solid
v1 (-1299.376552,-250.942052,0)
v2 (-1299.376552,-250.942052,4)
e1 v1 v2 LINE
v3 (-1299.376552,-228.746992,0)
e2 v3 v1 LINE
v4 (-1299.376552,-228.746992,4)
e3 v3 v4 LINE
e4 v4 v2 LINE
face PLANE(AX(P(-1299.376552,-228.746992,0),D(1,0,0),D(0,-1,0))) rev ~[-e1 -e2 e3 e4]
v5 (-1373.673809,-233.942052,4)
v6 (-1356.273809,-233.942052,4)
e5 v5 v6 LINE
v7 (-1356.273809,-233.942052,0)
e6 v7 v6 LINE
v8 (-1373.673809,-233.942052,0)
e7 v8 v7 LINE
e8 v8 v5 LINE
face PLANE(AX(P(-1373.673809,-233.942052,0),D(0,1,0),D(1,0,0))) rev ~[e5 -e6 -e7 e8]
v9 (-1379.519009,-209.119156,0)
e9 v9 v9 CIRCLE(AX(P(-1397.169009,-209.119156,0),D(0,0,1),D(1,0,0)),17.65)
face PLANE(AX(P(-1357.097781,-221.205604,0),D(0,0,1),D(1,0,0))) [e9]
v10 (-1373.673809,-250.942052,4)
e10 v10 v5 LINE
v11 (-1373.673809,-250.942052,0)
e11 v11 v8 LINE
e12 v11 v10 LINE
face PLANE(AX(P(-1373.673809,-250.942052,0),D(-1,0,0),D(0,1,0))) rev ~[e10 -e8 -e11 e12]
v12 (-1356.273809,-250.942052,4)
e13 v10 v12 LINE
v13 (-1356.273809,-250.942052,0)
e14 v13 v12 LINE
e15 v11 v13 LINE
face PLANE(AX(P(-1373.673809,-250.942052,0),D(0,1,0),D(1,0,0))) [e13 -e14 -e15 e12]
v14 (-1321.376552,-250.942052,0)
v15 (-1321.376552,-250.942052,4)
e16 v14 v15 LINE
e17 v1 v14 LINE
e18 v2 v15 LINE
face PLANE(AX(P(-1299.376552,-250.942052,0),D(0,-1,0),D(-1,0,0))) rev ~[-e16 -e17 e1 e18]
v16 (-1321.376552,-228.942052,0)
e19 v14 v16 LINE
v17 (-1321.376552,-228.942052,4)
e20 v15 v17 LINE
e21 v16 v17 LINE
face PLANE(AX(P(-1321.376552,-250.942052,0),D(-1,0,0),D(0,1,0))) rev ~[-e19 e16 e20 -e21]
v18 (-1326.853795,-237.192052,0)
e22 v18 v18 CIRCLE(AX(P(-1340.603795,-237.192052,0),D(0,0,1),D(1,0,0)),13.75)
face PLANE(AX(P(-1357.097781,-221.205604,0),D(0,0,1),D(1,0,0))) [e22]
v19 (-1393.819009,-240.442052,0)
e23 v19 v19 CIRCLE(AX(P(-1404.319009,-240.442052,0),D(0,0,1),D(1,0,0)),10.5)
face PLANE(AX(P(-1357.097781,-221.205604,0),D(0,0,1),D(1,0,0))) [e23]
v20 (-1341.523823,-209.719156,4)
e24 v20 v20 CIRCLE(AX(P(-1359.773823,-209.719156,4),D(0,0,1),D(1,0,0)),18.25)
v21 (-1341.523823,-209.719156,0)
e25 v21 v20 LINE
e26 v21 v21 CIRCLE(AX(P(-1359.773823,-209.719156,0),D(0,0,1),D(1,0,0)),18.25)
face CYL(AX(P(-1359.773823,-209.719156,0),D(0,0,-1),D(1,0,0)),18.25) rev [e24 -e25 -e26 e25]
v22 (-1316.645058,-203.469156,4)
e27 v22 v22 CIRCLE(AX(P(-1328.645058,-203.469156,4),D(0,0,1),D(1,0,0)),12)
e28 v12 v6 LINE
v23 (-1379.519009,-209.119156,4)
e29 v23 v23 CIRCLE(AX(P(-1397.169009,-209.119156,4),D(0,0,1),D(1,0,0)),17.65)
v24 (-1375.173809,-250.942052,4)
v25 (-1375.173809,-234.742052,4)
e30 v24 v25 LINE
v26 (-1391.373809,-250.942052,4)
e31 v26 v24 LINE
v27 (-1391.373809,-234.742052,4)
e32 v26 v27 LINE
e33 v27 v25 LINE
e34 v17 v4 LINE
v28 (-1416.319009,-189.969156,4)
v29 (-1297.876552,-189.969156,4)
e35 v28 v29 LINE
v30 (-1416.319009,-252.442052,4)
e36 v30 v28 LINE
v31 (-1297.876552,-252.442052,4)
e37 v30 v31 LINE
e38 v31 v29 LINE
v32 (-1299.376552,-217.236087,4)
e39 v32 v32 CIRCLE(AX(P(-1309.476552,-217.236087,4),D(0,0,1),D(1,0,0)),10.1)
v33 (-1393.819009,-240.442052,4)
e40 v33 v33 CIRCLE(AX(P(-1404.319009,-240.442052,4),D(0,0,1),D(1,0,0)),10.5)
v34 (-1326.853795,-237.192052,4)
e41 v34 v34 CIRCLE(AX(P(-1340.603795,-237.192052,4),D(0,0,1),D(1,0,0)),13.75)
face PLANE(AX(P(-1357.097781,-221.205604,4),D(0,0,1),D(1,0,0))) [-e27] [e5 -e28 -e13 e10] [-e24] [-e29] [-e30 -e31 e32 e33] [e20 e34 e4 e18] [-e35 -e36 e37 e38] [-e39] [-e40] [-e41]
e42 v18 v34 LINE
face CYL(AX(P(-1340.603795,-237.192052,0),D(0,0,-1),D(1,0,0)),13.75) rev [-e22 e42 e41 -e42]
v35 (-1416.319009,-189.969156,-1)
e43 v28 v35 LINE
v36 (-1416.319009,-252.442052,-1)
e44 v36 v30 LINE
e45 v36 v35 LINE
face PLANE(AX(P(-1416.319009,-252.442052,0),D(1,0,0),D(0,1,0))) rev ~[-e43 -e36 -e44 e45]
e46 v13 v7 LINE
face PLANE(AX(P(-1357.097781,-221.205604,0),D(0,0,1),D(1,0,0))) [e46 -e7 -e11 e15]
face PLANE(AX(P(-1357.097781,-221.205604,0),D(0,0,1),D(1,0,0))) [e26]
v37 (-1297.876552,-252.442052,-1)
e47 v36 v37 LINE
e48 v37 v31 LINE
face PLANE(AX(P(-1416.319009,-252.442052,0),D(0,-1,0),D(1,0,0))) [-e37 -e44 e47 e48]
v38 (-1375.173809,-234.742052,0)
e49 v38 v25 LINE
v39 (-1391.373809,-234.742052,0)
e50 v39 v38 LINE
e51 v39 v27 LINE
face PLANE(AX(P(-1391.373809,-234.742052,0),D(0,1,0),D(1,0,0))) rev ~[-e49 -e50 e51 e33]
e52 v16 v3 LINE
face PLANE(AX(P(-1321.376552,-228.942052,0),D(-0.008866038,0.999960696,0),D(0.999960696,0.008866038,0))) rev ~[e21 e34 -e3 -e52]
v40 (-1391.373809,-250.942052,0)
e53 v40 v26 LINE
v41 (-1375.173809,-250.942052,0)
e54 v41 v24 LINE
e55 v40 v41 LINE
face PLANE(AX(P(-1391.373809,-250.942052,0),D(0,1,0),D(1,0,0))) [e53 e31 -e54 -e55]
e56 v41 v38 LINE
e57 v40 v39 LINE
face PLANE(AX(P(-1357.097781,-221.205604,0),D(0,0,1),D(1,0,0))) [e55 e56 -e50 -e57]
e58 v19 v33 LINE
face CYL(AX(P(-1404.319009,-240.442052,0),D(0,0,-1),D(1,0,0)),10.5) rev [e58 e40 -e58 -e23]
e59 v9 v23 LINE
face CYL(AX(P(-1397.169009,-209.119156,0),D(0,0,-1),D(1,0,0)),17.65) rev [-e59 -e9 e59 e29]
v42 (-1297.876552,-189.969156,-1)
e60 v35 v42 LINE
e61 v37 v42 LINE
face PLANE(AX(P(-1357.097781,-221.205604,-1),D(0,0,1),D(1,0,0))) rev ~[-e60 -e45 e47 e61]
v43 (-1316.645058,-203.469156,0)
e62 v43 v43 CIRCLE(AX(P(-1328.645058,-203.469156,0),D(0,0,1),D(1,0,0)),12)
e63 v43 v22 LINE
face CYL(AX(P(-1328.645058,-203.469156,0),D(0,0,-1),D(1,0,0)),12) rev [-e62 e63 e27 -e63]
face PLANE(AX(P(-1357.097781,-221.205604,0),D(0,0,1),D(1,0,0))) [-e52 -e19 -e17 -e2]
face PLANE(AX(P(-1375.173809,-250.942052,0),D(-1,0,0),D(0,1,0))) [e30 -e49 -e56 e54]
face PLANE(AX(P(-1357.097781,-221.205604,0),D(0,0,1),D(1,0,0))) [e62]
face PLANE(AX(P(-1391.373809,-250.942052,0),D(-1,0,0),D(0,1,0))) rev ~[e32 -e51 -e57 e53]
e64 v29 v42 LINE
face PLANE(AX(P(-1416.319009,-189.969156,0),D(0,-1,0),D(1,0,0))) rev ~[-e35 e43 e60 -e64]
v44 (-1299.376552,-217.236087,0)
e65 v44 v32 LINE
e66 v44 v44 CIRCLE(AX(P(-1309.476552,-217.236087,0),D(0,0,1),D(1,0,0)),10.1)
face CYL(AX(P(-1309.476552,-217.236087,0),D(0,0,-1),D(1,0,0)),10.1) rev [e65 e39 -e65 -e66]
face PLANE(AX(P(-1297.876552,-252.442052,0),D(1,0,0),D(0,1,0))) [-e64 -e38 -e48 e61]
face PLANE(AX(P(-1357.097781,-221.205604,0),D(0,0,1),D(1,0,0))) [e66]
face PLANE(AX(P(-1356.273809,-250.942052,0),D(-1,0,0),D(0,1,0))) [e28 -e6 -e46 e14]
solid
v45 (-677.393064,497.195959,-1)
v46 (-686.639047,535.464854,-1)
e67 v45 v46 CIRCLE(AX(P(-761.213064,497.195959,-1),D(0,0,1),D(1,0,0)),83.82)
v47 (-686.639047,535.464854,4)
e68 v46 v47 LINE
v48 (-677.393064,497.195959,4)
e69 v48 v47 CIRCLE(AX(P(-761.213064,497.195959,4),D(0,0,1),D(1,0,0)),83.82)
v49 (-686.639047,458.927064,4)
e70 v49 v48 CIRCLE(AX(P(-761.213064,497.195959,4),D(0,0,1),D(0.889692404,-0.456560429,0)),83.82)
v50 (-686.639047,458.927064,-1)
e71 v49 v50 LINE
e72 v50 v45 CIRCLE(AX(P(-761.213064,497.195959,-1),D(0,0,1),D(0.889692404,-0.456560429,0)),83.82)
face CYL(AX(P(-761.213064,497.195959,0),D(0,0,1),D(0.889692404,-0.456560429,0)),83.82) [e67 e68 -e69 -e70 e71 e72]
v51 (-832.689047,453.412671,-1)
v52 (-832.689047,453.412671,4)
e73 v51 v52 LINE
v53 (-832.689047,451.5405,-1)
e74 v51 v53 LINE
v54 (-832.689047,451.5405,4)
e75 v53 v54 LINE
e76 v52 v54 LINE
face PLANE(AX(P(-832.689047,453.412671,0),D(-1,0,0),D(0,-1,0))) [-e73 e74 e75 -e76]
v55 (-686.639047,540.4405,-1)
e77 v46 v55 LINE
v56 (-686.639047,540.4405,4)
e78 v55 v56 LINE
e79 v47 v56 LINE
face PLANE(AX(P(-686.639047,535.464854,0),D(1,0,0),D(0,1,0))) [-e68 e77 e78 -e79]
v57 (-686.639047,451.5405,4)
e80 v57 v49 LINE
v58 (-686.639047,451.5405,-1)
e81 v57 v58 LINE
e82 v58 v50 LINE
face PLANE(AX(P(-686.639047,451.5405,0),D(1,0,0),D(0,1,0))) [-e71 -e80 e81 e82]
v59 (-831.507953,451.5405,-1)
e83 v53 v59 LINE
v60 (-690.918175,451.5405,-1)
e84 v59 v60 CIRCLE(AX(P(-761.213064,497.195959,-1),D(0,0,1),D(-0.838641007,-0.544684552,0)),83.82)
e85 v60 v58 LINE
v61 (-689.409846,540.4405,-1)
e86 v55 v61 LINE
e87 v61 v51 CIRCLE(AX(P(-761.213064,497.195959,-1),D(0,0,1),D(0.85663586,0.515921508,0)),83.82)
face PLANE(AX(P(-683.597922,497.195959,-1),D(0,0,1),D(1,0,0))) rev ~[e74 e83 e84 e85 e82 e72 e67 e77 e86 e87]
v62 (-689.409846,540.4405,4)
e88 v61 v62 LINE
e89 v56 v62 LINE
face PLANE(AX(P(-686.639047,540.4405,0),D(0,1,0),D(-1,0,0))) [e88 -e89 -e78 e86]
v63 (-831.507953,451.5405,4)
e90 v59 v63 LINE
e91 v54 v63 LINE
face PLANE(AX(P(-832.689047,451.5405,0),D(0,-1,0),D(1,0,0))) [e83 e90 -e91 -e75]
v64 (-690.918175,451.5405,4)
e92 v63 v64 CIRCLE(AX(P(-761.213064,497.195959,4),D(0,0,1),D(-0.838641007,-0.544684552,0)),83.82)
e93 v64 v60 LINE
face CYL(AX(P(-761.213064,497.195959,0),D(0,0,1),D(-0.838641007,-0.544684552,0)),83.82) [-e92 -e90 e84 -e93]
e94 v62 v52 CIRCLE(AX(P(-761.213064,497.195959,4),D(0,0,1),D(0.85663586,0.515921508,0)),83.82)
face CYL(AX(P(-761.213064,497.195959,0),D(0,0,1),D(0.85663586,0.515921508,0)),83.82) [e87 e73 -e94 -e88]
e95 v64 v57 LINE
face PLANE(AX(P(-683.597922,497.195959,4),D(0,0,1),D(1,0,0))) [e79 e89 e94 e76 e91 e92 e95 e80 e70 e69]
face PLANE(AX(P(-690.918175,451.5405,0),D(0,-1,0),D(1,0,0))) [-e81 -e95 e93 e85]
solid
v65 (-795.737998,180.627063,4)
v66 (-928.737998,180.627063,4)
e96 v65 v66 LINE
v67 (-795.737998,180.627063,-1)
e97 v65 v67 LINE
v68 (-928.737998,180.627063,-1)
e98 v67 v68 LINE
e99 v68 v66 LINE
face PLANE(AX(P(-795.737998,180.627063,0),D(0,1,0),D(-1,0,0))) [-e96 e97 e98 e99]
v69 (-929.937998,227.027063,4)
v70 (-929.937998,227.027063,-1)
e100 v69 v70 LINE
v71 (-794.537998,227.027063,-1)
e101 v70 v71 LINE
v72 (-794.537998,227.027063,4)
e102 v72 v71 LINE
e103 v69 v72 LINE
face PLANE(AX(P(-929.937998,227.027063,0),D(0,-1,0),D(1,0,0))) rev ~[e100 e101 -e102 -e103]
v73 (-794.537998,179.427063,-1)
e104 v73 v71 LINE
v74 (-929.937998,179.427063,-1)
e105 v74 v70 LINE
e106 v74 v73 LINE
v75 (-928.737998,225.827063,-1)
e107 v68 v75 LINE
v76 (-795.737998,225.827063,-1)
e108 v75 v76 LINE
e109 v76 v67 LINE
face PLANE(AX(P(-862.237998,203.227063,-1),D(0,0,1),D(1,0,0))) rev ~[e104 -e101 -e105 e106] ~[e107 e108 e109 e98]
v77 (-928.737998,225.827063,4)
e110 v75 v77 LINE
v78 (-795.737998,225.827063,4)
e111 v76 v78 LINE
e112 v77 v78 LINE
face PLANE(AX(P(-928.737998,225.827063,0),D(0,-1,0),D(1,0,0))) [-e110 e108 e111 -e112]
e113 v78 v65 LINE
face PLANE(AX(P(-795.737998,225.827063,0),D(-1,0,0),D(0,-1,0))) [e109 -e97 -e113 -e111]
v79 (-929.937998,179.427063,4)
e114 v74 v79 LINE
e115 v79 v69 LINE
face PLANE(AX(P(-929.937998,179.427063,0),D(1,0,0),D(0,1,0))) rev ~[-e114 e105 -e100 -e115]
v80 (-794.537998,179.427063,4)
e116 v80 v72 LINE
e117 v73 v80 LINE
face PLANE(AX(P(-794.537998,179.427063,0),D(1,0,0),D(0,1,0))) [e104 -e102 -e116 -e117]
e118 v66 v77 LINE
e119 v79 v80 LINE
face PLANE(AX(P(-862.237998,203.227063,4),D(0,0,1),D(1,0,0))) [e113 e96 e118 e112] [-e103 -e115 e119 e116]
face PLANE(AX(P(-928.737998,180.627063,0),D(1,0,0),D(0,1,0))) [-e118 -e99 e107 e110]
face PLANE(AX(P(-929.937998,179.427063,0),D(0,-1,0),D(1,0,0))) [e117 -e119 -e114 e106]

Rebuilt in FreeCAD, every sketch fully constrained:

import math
import FreeCAD as App
import Part
import Sketcher

doc = App.newDocument("Part")
body = doc.addObject("PartDesign::Body", "Body")

# Sketch on XY plane
sketch1 = body.newObject("Sketcher::SketchObject", "Sketch")
sketch1.AttachmentSupport = (doc.getObject("XY_Plane"), [""])
sketch1.MapMode = "FlatFace"
sketch1.addGeometry([
    Part.ArcOfCircle(Part.Circle(App.Vector(-761.2, 497.2, 0), App.Vector(0, 0, 1), 83.8), math.radians(-27), math.radians(0)),  # 0
    Part.ArcOfCircle(Part.Circle(App.Vector(-761.2, 497.2, 0), App.Vector(0, 0, 1), 83.8), math.radians(0), math.radians(27)),  # 1
    Part.LineSegment(App.Vector(-686.6, 535.5, 0), App.Vector(-686.6, 540.4, 0)),  # 2
    Part.LineSegment(App.Vector(-686.6, 540.4, 0), App.Vector(-689.4, 540.4, 0)),  # 3
    Part.ArcOfCircle(Part.Circle(App.Vector(-761.2, 497.2, 0), App.Vector(0, 0, 1), 83.8), math.radians(31), math.radians(211)),  # 4
    Part.LineSegment(App.Vector(-832.7, 453.4, 0), App.Vector(-832.7, 451.5, 0)),  # 5
    Part.LineSegment(App.Vector(-832.7, 451.5, 0), App.Vector(-831.5, 451.5, 0)),  # 6
    Part.ArcOfCircle(Part.Circle(App.Vector(-761.2, 497.2, 0), App.Vector(0, 0, 1), 83.8), math.radians(-147), math.radians(-33)),  # 7
    Part.LineSegment(App.Vector(-690.9, 451.5, 0), App.Vector(-686.6, 451.5, 0)),  # 8
    Part.LineSegment(App.Vector(-686.6, 451.5, 0), App.Vector(-686.6, 458.9, 0)),  # 9
], False)
sketch1.addConstraint([
    Sketcher.Constraint("Tangent", 0, 2, 1, 1),
    Sketcher.Constraint("Coincident", 1, 2, 2, 1),
    Sketcher.Constraint("Coincident", 2, 2, 3, 1),
    Sketcher.Constraint("Coincident", 3, 2, 4, 1),
    Sketcher.Constraint("Coincident", 4, 2, 5, 1),
    Sketcher.Constraint("Coincident", 5, 2, 6, 1),
    Sketcher.Constraint("Coincident", 6, 2, 7, 1),
    Sketcher.Constraint("Coincident", 7, 2, 8, 1),
    Sketcher.Constraint("Coincident", 8, 2, 9, 1),
    Sketcher.Constraint("Coincident", 9, 2, 0, 1),
    Sketcher.Constraint("Vertical", 2),
    Sketcher.Constraint("Horizontal", 3),
    Sketcher.Constraint("Vertical", 5),
    Sketcher.Constraint("Horizontal", 6),
    Sketcher.Constraint("Horizontal", 8),
    Sketcher.Constraint("Vertical", 9),
    Sketcher.Constraint("Coincident", 4, 3, 0, 3),
    Sketcher.Constraint("Coincident", 7, 3, 0, 3),
    Sketcher.Constraint("Equal", 0, 1),
    Sketcher.Constraint("Equal", 1, 4),
    Sketcher.Constraint("Equal", 4, 7),
    Sketcher.Constraint("Horizontal", 7, 3, 0, 2),
    Sketcher.Constraint("Horizontal", 6, 2, 7, 2),
    Sketcher.Constraint("Vertical", 2, 2, 8, 2),
    Sketcher.Constraint("Radius", 0, 83.82),
    Sketcher.Constraint("DistanceX", 3, 2, 3, 1, 2.7708),
    Sketcher.Constraint("DistanceX", 8, 1, 8, 2, 4.279128),
    Sketcher.Constraint("DistanceY", 5, 2, 5, 1, 1.872171),
    Sketcher.Constraint("DistanceY", -1, 1, 2, 2, 540.4405),
    Sketcher.Constraint("DistanceY", -1, 1, 5, 2, 451.5405),
    Sketcher.Constraint("DistanceX", 0, 3, -1, 1, 761.213064),
])
pad1 = body.newObject("PartDesign::Pad", "Pad")
pad1.Profile = sketch1
pad1.Length = 4

# Sketch on XY plane
sketch2 = body.newObject("Sketcher::SketchObject", "Sketch001")
sketch2.AttachmentSupport = (doc.getObject("XY_Plane"), [""])
sketch2.MapMode = "FlatFace"
sketch2.addGeometry([
    Part.ArcOfCircle(Part.Circle(App.Vector(-761.2, 497.2, 0), App.Vector(0, 0, 1), 83.8), math.radians(-27), math.radians(0)),  # 0
    Part.ArcOfCircle(Part.Circle(App.Vector(-761.2, 497.2, 0), App.Vector(0, 0, 1), 83.8), math.radians(0), math.radians(27)),  # 1
    Part.LineSegment(App.Vector(-686.6, 535.5, 0), App.Vector(-686.6, 540.4, 0)),  # 2
    Part.LineSegment(App.Vector(-686.6, 540.4, 0), App.Vector(-689.4, 540.4, 0)),  # 3
    Part.ArcOfCircle(Part.Circle(App.Vector(-761.2, 497.2, 0), App.Vector(0, 0, 1), 83.8), math.radians(31), math.radians(211)),  # 4
    Part.LineSegment(App.Vector(-832.7, 453.4, 0), App.Vector(-832.7, 451.5, 0)),  # 5
    Part.LineSegment(App.Vector(-832.7, 451.5, 0), App.Vector(-831.5, 451.5, 0)),  # 6
    Part.ArcOfCircle(Part.Circle(App.Vector(-761.2, 497.2, 0), App.Vector(0, 0, 1), 83.8), math.radians(-147), math.radians(-33)),  # 7
    Part.LineSegment(App.Vector(-690.9, 451.5, 0), App.Vector(-686.6, 451.5, 0)),  # 8
    Part.LineSegment(App.Vector(-686.6, 451.5, 0), App.Vector(-686.6, 458.9, 0)),  # 9
], False)
sketch2.addConstraint([
    Sketcher.Constraint("Tangent", 0, 2, 1, 1),
    Sketcher.Constraint("Coincident", 1, 2, 2, 1),
    Sketcher.Constraint("Coincident", 2, 2, 3, 1),
    Sketcher.Constraint("Coincident", 3, 2, 4, 1),
    Sketcher.Constraint("Coincident", 4, 2, 5, 1),
    Sketcher.Constraint("Coincident", 5, 2, 6, 1),
    Sketcher.Constraint("Coincident", 6, 2, 7, 1),
    Sketcher.Constraint("Coincident", 7, 2, 8, 1),
    Sketcher.Constraint("Coincident", 8, 2, 9, 1),
    Sketcher.Constraint("Coincident", 9, 2, 0, 1),
    Sketcher.Constraint("Vertical", 2),
    Sketcher.Constraint("Horizontal", 3),
    Sketcher.Constraint("Vertical", 5),
    Sketcher.Constraint("Horizontal", 6),
    Sketcher.Constraint("Horizontal", 8),
    Sketcher.Constraint("Vertical", 9),
    Sketcher.Constraint("Coincident", 4, 3, 0, 3),
    Sketcher.Constraint("Coincident", 7, 3, 0, 3),
    Sketcher.Constraint("Equal", 0, 1),
    Sketcher.Constraint("Equal", 1, 4),
    Sketcher.Constraint("Equal", 4, 7),
    Sketcher.Constraint("Horizontal", 7, 3, 0, 2),
    Sketcher.Constraint("Horizontal", 6, 2, 7, 2),
    Sketcher.Constraint("Vertical", 2, 2, 8, 2),
    Sketcher.Constraint("Radius", 0, 83.82),
    Sketcher.Constraint("DistanceX", 3, 2, 3, 1, 2.7708),
    Sketcher.Constraint("DistanceX", 8, 1, 8, 2, 4.279128),
    Sketcher.Constraint("DistanceY", 5, 2, 5, 1, 1.872171),
    Sketcher.Constraint("DistanceY", -1, 1, 2, 2, 540.4405),
    Sketcher.Constraint("DistanceY", -1, 1, 5, 2, 451.5405),
    Sketcher.Constraint("DistanceX", 0, 3, -1, 1, 761.213064),
])
pad2 = body.newObject("PartDesign::Pad", "Pad001")
pad2.Profile = sketch2
pad2.Length = 1
pad2.Reversed = True
body2 = doc.addObject("PartDesign::Body", "Body001")

# Sketch on XY plane
sketch3 = body2.newObject("Sketcher::SketchObject", "Sketch002")
sketch3.AttachmentSupport = (doc.getObject("XY_Plane001"), [""])
sketch3.MapMode = "FlatFace"
sketch3.addGeometry([
    Part.LineSegment(App.Vector(-1416, -190, 0), App.Vector(-1416, -252, 0)),  # 0
    Part.LineSegment(App.Vector(-1416, -252, 0), App.Vector(-1298, -252, 0)),  # 1
    Part.LineSegment(App.Vector(-1298, -252, 0), App.Vector(-1298, -190, 0)),  # 2
    Part.LineSegment(App.Vector(-1298, -190, 0), App.Vector(-1416, -190, 0)),  # 3
    Part.Circle(App.Vector(-1404, -240, 0), App.Vector(0, 0, 1), 10),  # 4
    Part.LineSegment(App.Vector(-1375, -251, 0), App.Vector(-1391, -251, 0)),  # 5
    Part.LineSegment(App.Vector(-1391, -251, 0), App.Vector(-1391, -235, 0)),  # 6
    Part.LineSegment(App.Vector(-1391, -235, 0), App.Vector(-1375, -235, 0)),  # 7
    Part.LineSegment(App.Vector(-1375, -235, 0), App.Vector(-1375, -251, 0)),  # 8
    Part.LineSegment(App.Vector(-1356, -251, 0), App.Vector(-1374, -251, 0)),  # 9
    Part.LineSegment(App.Vector(-1374, -251, 0), App.Vector(-1374, -234, 0)),  # 10
    Part.LineSegment(App.Vector(-1374, -234, 0), App.Vector(-1356, -234, 0)),  # 11
    Part.LineSegment(App.Vector(-1356, -234, 0), App.Vector(-1356, -251, 0)),  # 12
    Part.Circle(App.Vector(-1341, -237, 0), App.Vector(0, 0, 1), 14),  # 13
    Part.LineSegment(App.Vector(-1299, -229, 0), App.Vector(-1299, -251, 0)),  # 14
    Part.LineSegment(App.Vector(-1299, -251, 0), App.Vector(-1321, -251, 0)),  # 15
    Part.LineSegment(App.Vector(-1321, -251, 0), App.Vector(-1321, -229, 0)),  # 16
    Part.LineSegment(App.Vector(-1321, -229, 0), App.Vector(-1299, -229, 0)),  # 17
    Part.Circle(App.Vector(-1397, -209, 0), App.Vector(0, 0, 1), 18),  # 18
    Part.Circle(App.Vector(-1360, -210, 0), App.Vector(0, 0, 1), 18),  # 19
    Part.Circle(App.Vector(-1309, -217, 0), App.Vector(0, 0, 1), 10),  # 20
    Part.Circle(App.Vector(-1329, -203, 0), App.Vector(0, 0, 1), 12),  # 21
], False)
sketch3.addConstraint([
    Sketcher.Constraint("Coincident", 0, 2, 1, 1),
    Sketcher.Constraint("Coincident", 1, 2, 2, 1),
    Sketcher.Constraint("Coincident", 2, 2, 3, 1),
    Sketcher.Constraint("Coincident", 3, 2, 0, 1),
    Sketcher.Constraint("Coincident", 5, 2, 6, 1),
    Sketcher.Constraint("Coincident", 6, 2, 7, 1),
    Sketcher.Constraint("Coincident", 7, 2, 8, 1),
    Sketcher.Constraint("Coincident", 8, 2, 5, 1),
    Sketcher.Constraint("Coincident", 9, 2, 10, 1),
    Sketcher.Constraint("Coincident", 10, 2, 11, 1),
    Sketcher.Constraint("Coincident", 11, 2, 12, 1),
    Sketcher.Constraint("Coincident", 12, 2, 9, 1),
    Sketcher.Constraint("Coincident", 14, 2, 15, 1),
    Sketcher.Constraint("Coincident", 15, 2, 16, 1),
    Sketcher.Constraint("Coincident", 16, 2, 17, 1),
    Sketcher.Constraint("Coincident", 17, 2, 14, 1),
    Sketcher.Constraint("Vertical", 0),
    Sketcher.Constraint("Horizontal", 1),
    Sketcher.Constraint("Vertical", 2),
    Sketcher.Constraint("Horizontal", 3),
    Sketcher.Constraint("Horizontal", 5),
    Sketcher.Constraint("Vertical", 6),
    Sketcher.Constraint("Horizontal", 7),
    Sketcher.Constraint("Vertical", 8),
    Sketcher.Constraint("Horizontal", 9),
    Sketcher.Constraint("Vertical", 10),
    Sketcher.Constraint("Horizontal", 11),
    Sketcher.Constraint("Vertical", 12),
    Sketcher.Constraint("Vertical", 14),
    Sketcher.Constraint("Horizontal", 15),
    Sketcher.Constraint("Vertical", 16),
    Sketcher.Constraint("Horizontal", 8, 2, 9, 2),
    Sketcher.Constraint("Horizontal", 12, 2, 14, 2),
    Sketcher.Constraint("Equal", 7, 6),
    Sketcher.Constraint("Equal", 15, 16),
    Sketcher.Constraint("Diameter", 4, 21.0),
    Sketcher.Constraint("Diameter", 21, 24.0),
    Sketcher.Constraint("Diameter", 13, 27.5),
    Sketcher.Constraint("Diameter", 18, 35.3),
    Sketcher.Constraint("Diameter", 19, 36.5),
    Sketcher.Constraint("Diameter", 20, 20.2),
    Sketcher.Constraint("DistanceX", 15, 2, 15, 1, 22.0),
    Sketcher.Constraint("DistanceY", 10, 1, 10, 2, 17.0),
    Sketcher.Constraint("DistanceX", 5, 2, 5, 1, 16.2),
    Sketcher.Constraint("DistanceX", 9, 2, 9, 1, 17.4),
    Sketcher.Constraint("DistanceX", 0, 2, 4, 3, 12.0),
    Sketcher.Constraint("DistanceY", 0, 2, 4, 3, 12.0),
    Sketcher.Constraint("DistanceY", 19, 3, 18, 3, 0.6),
    Sketcher.Constraint("DistanceX", 20, 3, 1, 2, 11.6),
    Sketcher.Constraint("DistanceY", 21, 3, 2, 2, 13.5),
    Sketcher.Constraint("DistanceY", 5, 2, 4, 3, 10.5),
    Sketcher.Constraint("DistanceX", 8, 2, 9, 2, 1.5),
    Sketcher.Constraint("DistanceX", 14, 2, 1, 2, 1.5),
    Sketcher.Constraint("DistanceY", 4, 3, 13, 3, 3.25),
    Sketcher.Constraint("DistanceX", 4, 3, 18, 3, 7.15),
    Sketcher.Constraint("DistanceY", 19, 3, 21, 3, 6.25),
    Sketcher.Constraint("DistanceY", 14, 2, 14, 1, 22.19506),
    Sketcher.Constraint("DistanceX", 4, 3, 5, 2, 12.9452),
    Sketcher.Constraint("DistanceX", 1, 1, 1, 2, 118.442458),
    Sketcher.Constraint("DistanceY", 0, 2, 0, 1, 62.472896),
    Sketcher.Constraint("DistanceX", 4, 3, -1, 1, 1404.319009),
    Sketcher.Constraint("DistanceY", 17, 2, -1, 1, 228.746992),
    Sketcher.Constraint("DistanceX", 19, 3, 20, 3, 50.297271),
    Sketcher.Constraint("DistanceY", 20, 3, 19, 3, 7.51693),
    Sketcher.Constraint("DistanceX", 18, 3, 21, 3, 68.523952),
    Sketcher.Constraint("DistanceX", 13, 3, -1, 1, 1340.603795),
])
pad3 = body2.newObject("PartDesign::Pad", "Pad002")
pad3.Profile = sketch3
pad3.Length = 4

# Sketch on XY plane
sketch4 = body2.newObject("Sketcher::SketchObject", "Sketch003")
sketch4.AttachmentSupport = (doc.getObject("XY_Plane001"), [""])
sketch4.MapMode = "FlatFace"
sketch4.addGeometry([
    Part.LineSegment(App.Vector(-1416, -190, 0), App.Vector(-1416, -252, 0)),
    Part.LineSegment(App.Vector(-1416, -252, 0), App.Vector(-1298, -252, 0)),
    Part.LineSegment(App.Vector(-1298, -252, 0), App.Vector(-1298, -190, 0)),
    Part.LineSegment(App.Vector(-1298, -190, 0), App.Vector(-1416, -190, 0)),
], False)
sketch4.addConstraint([
    Sketcher.Constraint("Coincident", 0, 2, 1, 1),
    Sketcher.Constraint("Coincident", 1, 2, 2, 1),
    Sketcher.Constraint("Coincident", 2, 2, 3, 1),
    Sketcher.Constraint("Coincident", 3, 2, 0, 1),
    Sketcher.Constraint("Vertical", 0),
    Sketcher.Constraint("Horizontal", 1),
    Sketcher.Constraint("Vertical", 2),
    Sketcher.Constraint("Horizontal", 3),
    Sketcher.Constraint("DistanceX", 1, 1, 1, 2, 118.442458),
    Sketcher.Constraint("DistanceY", 0, 2, 0, 1, 62.472896),
    Sketcher.Constraint("DistanceX", 0, 2, -1, 1, 1416.319009),
    Sketcher.Constraint("DistanceY", 0, 2, -1, 1, 252.442052),
])
pad4 = body2.newObject("PartDesign::Pad", "Pad003")
pad4.Profile = sketch4
pad4.Length = 1
pad4.Reversed = True
body3 = doc.addObject("PartDesign::Body", "Body002")

# Sketch on XY plane
sketch5 = body3.newObject("Sketcher::SketchObject", "Sketch004")
sketch5.AttachmentSupport = (doc.getObject("XY_Plane002"), [""])
sketch5.MapMode = "FlatFace"
sketch5.addGeometry([
    Part.LineSegment(App.Vector(-930, 227, 0), App.Vector(-930, 179, 0)),  # 0
    Part.LineSegment(App.Vector(-930, 179, 0), App.Vector(-795, 179, 0)),  # 1
    Part.LineSegment(App.Vector(-795, 179, 0), App.Vector(-795, 227, 0)),  # 2
    Part.LineSegment(App.Vector(-795, 227, 0), App.Vector(-930, 227, 0)),  # 3
    Part.LineSegment(App.Vector(-796, 181, 0), App.Vector(-929, 181, 0)),  # 4
    Part.LineSegment(App.Vector(-929, 181, 0), App.Vector(-929, 226, 0)),  # 5
    Part.LineSegment(App.Vector(-929, 226, 0), App.Vector(-796, 226, 0)),  # 6
    Part.LineSegment(App.Vector(-796, 226, 0), App.Vector(-796, 181, 0)),  # 7
], False)
sketch5.addConstraint([
    Sketcher.Constraint("Coincident", 0, 2, 1, 1),
    Sketcher.Constraint("Coincident", 1, 2, 2, 1),
    Sketcher.Constraint("Coincident", 2, 2, 3, 1),
    Sketcher.Constraint("Coincident", 3, 2, 0, 1),
    Sketcher.Constraint("Coincident", 4, 2, 5, 1),
    Sketcher.Constraint("Coincident", 5, 2, 6, 1),
    Sketcher.Constraint("Coincident", 6, 2, 7, 1),
    Sketcher.Constraint("Coincident", 7, 2, 4, 1),
    Sketcher.Constraint("Vertical", 0),
    Sketcher.Constraint("Horizontal", 1),
    Sketcher.Constraint("Vertical", 2),
    Sketcher.Constraint("Horizontal", 3),
    Sketcher.Constraint("Horizontal", 4),
    Sketcher.Constraint("Vertical", 5),
    Sketcher.Constraint("Horizontal", 6),
    Sketcher.Constraint("Vertical", 7),
    Sketcher.Constraint("DistanceX", 4, 2, 4, 1, 133.0),
    Sketcher.Constraint("DistanceX", 1, 1, 1, 2, 135.4),
    Sketcher.Constraint("DistanceY", 0, 2, 0, 1, 47.6),
    Sketcher.Constraint("DistanceY", 5, 1, 5, 2, 45.2),
    Sketcher.Constraint("DistanceX", 0, 2, 4, 2, 1.2),
    Sketcher.Constraint("DistanceY", 0, 2, 4, 2, 1.2),
    Sketcher.Constraint("DistanceX", 0, 2, -1, 1, 929.937998),
    Sketcher.Constraint("DistanceY", -1, 1, 0, 2, 179.427063),
])
pad5 = body3.newObject("PartDesign::Pad", "Pad004")
pad5.Profile = sketch5
pad5.Length = 4

# Sketch on XY plane
sketch6 = body3.newObject("Sketcher::SketchObject", "Sketch005")
sketch6.AttachmentSupport = (doc.getObject("XY_Plane002"), [""])
sketch6.MapMode = "FlatFace"
sketch6.addGeometry([
    Part.LineSegment(App.Vector(-930, 227, 0), App.Vector(-930, 179, 0)),  # 0
    Part.LineSegment(App.Vector(-930, 179, 0), App.Vector(-795, 179, 0)),  # 1
    Part.LineSegment(App.Vector(-795, 179, 0), App.Vector(-795, 227, 0)),  # 2
    Part.LineSegment(App.Vector(-795, 227, 0), App.Vector(-930, 227, 0)),  # 3
    Part.LineSegment(App.Vector(-796, 181, 0), App.Vector(-929, 181, 0)),  # 4
    Part.LineSegment(App.Vector(-929, 181, 0), App.Vector(-929, 226, 0)),  # 5
    Part.LineSegment(App.Vector(-929, 226, 0), App.Vector(-796, 226, 0)),  # 6
    Part.LineSegment(App.Vector(-796, 226, 0), App.Vector(-796, 181, 0)),  # 7
], False)
sketch6.addConstraint([
    Sketcher.Constraint("Coincident", 0, 2, 1, 1),
    Sketcher.Constraint("Coincident", 1, 2, 2, 1),
    Sketcher.Constraint("Coincident", 2, 2, 3, 1),
    Sketcher.Constraint("Coincident", 3, 2, 0, 1),
    Sketcher.Constraint("Coincident", 4, 2, 5, 1),
    Sketcher.Constraint("Coincident", 5, 2, 6, 1),
    Sketcher.Constraint("Coincident", 6, 2, 7, 1),
    Sketcher.Constraint("Coincident", 7, 2, 4, 1),
    Sketcher.Constraint("Vertical", 0),
    Sketcher.Constraint("Horizontal", 1),
    Sketcher.Constraint("Vertical", 2),
    Sketcher.Constraint("Horizontal", 3),
    Sketcher.Constraint("Horizontal", 4),
    Sketcher.Constraint("Vertical", 5),
    Sketcher.Constraint("Horizontal", 6),
    Sketcher.Constraint("Vertical", 7),
    Sketcher.Constraint("DistanceX", 4, 2, 4, 1, 133.0),
    Sketcher.Constraint("DistanceX", 1, 1, 1, 2, 135.4),
    Sketcher.Constraint("DistanceY", 0, 2, 0, 1, 47.6),
    Sketcher.Constraint("DistanceY", 5, 1, 5, 2, 45.2),
    Sketcher.Constraint("DistanceX", 0, 2, 4, 2, 1.2),
    Sketcher.Constraint("DistanceY", 0, 2, 4, 2, 1.2),
    Sketcher.Constraint("DistanceX", 0, 2, -1, 1, 929.937998),
    Sketcher.Constraint("DistanceY", -1, 1, 0, 2, 179.427063),
])
pad6 = body3.newObject("PartDesign::Pad", "Pad005")
pad6.Profile = sketch6
pad6.Length = 1
pad6.Reversed = True

doc.recompute()
